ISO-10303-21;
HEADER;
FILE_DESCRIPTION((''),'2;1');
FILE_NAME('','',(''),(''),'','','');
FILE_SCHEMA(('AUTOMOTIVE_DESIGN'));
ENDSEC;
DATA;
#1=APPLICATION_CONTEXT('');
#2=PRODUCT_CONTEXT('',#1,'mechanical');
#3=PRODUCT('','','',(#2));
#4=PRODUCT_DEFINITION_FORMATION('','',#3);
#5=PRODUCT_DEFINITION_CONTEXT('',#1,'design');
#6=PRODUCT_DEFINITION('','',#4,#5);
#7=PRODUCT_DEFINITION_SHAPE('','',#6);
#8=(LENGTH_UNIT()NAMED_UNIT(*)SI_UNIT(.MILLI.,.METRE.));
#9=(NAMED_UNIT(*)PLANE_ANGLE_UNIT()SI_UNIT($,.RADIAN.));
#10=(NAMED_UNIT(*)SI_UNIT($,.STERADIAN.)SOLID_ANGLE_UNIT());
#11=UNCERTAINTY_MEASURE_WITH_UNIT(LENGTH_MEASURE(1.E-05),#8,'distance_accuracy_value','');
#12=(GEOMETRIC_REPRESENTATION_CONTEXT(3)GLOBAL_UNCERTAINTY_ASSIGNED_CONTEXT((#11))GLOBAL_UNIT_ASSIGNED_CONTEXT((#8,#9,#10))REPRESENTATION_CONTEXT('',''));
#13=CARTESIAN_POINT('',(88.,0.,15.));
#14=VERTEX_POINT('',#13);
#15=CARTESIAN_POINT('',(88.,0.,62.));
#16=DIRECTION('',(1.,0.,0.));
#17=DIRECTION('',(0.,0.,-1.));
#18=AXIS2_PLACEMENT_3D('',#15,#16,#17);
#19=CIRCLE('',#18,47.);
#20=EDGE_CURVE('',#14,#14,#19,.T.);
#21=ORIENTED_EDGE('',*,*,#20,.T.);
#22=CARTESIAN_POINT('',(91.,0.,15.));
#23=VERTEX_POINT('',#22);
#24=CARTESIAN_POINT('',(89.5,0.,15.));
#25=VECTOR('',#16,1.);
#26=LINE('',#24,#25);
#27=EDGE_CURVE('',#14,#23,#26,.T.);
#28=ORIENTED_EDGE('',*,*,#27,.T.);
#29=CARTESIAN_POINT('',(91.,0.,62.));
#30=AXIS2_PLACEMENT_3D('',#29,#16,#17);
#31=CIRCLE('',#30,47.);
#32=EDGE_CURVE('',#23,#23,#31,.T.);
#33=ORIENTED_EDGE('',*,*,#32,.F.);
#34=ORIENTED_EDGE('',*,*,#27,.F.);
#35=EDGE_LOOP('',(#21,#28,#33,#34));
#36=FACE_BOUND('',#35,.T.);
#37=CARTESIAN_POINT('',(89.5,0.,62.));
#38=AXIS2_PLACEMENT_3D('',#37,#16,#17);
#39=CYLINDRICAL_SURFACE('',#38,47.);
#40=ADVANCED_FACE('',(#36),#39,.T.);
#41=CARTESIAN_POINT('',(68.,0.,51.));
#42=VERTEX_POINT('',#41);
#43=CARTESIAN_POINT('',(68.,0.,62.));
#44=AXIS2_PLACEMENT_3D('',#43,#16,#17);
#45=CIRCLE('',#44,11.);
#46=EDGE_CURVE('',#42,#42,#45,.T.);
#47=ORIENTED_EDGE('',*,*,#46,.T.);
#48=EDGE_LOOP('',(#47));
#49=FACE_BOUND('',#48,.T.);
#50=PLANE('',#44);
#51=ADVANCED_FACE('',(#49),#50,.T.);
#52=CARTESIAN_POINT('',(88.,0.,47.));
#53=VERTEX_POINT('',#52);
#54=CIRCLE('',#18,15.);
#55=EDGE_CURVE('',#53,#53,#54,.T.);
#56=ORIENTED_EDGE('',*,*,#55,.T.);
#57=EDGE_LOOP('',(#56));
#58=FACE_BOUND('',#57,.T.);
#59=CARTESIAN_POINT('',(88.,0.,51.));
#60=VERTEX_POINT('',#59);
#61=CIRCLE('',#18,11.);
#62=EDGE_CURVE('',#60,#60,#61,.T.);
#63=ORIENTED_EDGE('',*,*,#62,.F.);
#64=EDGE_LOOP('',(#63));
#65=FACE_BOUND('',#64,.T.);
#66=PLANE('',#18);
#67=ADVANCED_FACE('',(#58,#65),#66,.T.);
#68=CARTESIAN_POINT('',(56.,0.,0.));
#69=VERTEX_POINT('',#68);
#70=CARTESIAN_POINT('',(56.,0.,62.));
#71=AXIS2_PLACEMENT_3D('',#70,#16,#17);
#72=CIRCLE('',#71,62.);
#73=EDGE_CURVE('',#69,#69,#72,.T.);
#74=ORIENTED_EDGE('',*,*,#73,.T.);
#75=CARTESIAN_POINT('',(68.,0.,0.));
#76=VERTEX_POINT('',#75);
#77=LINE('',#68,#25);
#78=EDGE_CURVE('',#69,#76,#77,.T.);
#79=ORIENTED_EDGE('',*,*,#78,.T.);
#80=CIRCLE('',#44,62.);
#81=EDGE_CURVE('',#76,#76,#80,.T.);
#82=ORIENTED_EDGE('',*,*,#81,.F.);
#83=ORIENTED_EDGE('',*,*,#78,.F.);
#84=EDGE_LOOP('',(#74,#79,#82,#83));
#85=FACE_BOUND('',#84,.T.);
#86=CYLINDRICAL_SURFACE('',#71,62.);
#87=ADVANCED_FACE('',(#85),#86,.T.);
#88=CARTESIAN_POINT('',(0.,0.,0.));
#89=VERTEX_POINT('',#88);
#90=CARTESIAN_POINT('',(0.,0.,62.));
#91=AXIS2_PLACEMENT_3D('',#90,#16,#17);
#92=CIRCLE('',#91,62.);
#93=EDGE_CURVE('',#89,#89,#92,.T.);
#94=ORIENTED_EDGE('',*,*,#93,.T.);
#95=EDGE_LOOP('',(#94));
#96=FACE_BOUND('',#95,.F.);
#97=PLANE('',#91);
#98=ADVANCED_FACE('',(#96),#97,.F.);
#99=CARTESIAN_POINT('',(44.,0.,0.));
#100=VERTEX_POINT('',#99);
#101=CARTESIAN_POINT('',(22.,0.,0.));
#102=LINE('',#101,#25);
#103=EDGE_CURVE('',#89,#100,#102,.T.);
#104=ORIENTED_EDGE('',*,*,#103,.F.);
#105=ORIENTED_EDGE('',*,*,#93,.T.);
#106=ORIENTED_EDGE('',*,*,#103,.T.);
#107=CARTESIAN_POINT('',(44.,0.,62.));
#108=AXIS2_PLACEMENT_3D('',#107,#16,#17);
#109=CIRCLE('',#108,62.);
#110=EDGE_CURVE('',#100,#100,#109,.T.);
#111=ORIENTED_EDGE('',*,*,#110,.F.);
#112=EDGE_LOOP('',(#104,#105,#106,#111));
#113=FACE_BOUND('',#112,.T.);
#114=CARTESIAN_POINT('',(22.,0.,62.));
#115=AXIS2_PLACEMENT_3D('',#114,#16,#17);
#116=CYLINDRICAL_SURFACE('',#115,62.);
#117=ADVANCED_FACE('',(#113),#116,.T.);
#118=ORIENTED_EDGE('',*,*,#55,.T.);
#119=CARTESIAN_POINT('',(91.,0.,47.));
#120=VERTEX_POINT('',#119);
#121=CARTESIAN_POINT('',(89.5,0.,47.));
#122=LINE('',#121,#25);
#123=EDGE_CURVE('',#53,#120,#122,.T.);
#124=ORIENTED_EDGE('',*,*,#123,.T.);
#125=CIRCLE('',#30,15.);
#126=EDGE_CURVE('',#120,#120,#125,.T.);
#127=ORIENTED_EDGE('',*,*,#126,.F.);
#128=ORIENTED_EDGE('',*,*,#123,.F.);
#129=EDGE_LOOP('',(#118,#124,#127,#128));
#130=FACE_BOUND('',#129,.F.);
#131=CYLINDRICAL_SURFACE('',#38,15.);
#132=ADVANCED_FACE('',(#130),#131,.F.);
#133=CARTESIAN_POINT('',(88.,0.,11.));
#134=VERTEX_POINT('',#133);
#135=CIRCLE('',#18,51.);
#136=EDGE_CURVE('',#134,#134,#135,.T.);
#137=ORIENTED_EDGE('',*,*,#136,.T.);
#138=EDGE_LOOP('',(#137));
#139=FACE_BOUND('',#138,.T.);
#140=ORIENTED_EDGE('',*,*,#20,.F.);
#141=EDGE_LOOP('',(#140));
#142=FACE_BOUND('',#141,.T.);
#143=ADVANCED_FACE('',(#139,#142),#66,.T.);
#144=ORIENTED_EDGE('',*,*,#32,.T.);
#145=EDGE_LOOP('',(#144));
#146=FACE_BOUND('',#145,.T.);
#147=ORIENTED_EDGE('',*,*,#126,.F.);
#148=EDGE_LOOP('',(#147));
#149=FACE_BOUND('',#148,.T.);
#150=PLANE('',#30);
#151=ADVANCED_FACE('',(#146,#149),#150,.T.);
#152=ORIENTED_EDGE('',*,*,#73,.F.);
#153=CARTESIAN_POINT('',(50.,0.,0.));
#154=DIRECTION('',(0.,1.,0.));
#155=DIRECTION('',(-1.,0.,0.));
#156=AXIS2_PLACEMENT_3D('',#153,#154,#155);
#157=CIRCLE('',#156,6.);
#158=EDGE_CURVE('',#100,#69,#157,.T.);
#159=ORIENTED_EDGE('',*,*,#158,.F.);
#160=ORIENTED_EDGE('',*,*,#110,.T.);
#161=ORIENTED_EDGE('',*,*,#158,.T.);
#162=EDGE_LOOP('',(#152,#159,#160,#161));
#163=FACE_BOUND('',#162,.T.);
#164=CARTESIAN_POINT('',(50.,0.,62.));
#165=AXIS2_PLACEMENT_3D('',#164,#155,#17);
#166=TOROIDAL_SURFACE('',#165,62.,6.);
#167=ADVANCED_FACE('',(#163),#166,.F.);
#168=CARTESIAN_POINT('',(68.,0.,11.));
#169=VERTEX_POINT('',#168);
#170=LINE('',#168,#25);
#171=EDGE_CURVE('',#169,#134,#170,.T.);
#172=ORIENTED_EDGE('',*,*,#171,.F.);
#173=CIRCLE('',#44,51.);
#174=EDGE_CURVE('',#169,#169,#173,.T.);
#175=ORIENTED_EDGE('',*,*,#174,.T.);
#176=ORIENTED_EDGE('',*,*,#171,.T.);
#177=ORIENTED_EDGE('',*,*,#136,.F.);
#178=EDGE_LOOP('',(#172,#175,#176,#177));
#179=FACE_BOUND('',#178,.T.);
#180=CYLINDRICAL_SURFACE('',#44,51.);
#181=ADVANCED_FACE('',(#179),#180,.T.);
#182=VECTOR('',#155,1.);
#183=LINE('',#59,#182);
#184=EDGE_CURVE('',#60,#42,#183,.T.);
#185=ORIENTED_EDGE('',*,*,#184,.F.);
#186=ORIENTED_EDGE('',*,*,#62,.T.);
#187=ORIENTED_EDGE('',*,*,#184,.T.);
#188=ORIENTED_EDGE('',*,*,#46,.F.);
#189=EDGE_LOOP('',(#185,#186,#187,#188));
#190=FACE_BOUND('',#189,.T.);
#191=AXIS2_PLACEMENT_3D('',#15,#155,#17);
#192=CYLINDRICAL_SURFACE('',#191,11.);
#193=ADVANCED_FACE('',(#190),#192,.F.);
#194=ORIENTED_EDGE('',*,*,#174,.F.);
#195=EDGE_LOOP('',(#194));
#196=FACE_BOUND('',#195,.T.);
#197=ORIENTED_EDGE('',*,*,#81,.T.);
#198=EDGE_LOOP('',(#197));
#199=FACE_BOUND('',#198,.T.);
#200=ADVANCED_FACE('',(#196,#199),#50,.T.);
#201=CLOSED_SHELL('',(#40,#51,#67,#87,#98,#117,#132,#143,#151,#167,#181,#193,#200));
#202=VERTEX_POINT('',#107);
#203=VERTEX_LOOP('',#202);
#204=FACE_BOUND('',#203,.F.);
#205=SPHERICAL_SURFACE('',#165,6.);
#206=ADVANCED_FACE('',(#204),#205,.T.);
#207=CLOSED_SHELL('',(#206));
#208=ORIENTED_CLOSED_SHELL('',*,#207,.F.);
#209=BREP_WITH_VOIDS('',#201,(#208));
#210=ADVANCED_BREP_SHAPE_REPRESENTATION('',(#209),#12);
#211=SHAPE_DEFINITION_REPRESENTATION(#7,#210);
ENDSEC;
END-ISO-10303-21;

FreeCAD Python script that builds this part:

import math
import FreeCAD as App
import Part
import Sketcher
from FreeCAD import Vector
Q = App.Units.Quantity

doc = App.newDocument("Part")
body = doc.addObject("PartDesign::Body", "Body")

sketch1 = body.newObject("Sketcher::SketchObject", "Sketch")
sketch1.AttachmentSupport = (doc.getObject("XZ_Plane"), [""])
sketch1.MapMode = "FlatFace"
sketch1.addGeometry([
    Part.LineSegment(Vector(0, 62, 0), Vector(0, 0, 0)),
    Part.LineSegment(Vector(0, 0, 0), Vector(44, 0, 0)),
    Part.ArcOfCircle(Part.Circle(Vector(50, 0, 0), Vector(0, 0, 1), 6), math.radians(0), math.radians(180)),
    Part.LineSegment(Vector(56, 0, 0), Vector(68, 0, 0)),
    Part.LineSegment(Vector(68, 0, 0), Vector(68, 11, 0)),
    Part.LineSegment(Vector(68, 11, 0), Vector(88, 11, 0)),
    Part.LineSegment(Vector(88, 11, 0), Vector(88, 15, 0)),
    Part.LineSegment(Vector(88, 15, 0), Vector(91, 15, 0)),
    Part.LineSegment(Vector(91, 15, 0), Vector(91, 47, 0)),
    Part.LineSegment(Vector(91, 47, 0), Vector(88, 47, 0)),
    Part.LineSegment(Vector(88, 47, 0), Vector(88, 51, 0)),
    Part.LineSegment(Vector(88, 51, 0), Vector(68, 51, 0)),
    Part.LineSegment(Vector(68, 51, 0), Vector(68, 62, 0)),
    Part.LineSegment(Vector(68, 62, 0), Vector(56, 62, 0)),
    Part.ArcOfCircle(Part.Circle(Vector(50, 62, 0), Vector(0, 0, 1), 6), math.radians(180), math.radians(360)),
    Part.LineSegment(Vector(44, 62, 0), Vector(0, 62, 0)),
], False)
sketch1.addGeometry(Part.LineSegment(Vector(0, 62, 0), Vector(91, 62, 0)), True)
sketch1.addConstraint([
    Sketcher.Constraint("Coincident", 0, 2, 1, 1),
    Sketcher.Constraint("Coincident", 1, 2, 2, 2),
    Sketcher.Constraint("Coincident", 2, 1, 3, 1),
    Sketcher.Constraint("Coincident", 3, 2, 4, 1),
    Sketcher.Constraint("Coincident", 4, 2, 5, 1),
    Sketcher.Constraint("Coincident", 5, 2, 6, 1),
    Sketcher.Constraint("Coincident", 6, 2, 7, 1),
    Sketcher.Constraint("Coincident", 7, 2, 8, 1),
    Sketcher.Constraint("Coincident", 8, 2, 9, 1),
    Sketcher.Constraint("Coincident", 9, 2, 10, 1),
    Sketcher.Constraint("Coincident", 10, 2, 11, 1),
    Sketcher.Constraint("Coincident", 11, 2, 12, 1),
    Sketcher.Constraint("Coincident", 12, 2, 13, 1),
    Sketcher.Constraint("Coincident", 13, 2, 14, 2),
    Sketcher.Constraint("Coincident", 14, 1, 15, 1),
    Sketcher.Constraint("Coincident", 15, 2, 0, 1),
    Sketcher.Constraint("Vertical", 0),
    Sketcher.Constraint("Horizontal", 1),
    Sketcher.Constraint("Horizontal", 3),
    Sketcher.Constraint("Vertical", 4),
    Sketcher.Constraint("Horizontal", 5),
    Sketcher.Constraint("Vertical", 6),
    Sketcher.Constraint("Horizontal", 7),
    Sketcher.Constraint("Vertical", 8),
    Sketcher.Constraint("Horizontal", 9),
    Sketcher.Constraint("Vertical", 10),
    Sketcher.Constraint("Horizontal", 11),
    Sketcher.Constraint("Vertical", 12),
    Sketcher.Constraint("Horizontal", 13),
    Sketcher.Constraint("Horizontal", 15),
    Sketcher.Constraint("Horizontal", 16),
    Sketcher.Constraint("Coincident", 0, 2, -1, 1),
    Sketcher.Constraint("Coincident", 16, 1, 15, 2),
    Sketcher.Constraint("Equal", 2, 14),
    Sketcher.Constraint("PointOnObject", 2, 3, -1),
    Sketcher.Constraint("PointOnObject", 2, 1, -1),
    Sketcher.Constraint("Horizontal", 14, 3, 12, 2),
    Sketcher.Constraint("Horizontal", 13, 2, 14, 1),
    Sketcher.Constraint("Vertical", 2, 3, 14, 3),
    Sketcher.Constraint("Vertical", 6, 2, 9, 2),
    Sketcher.Constraint("Vertical", 4, 2, 11, 2),
    Sketcher.Constraint("Vertical", 8, 2, 16, 2),
    Sketcher.Constraint("Equal", 6, 10),
    Sketcher.Constraint("Equal", 4, 12),
    Sketcher.Constraint("Radius", 2, Q("6 mm")),
    Sketcher.Constraint("DistanceX", 1, 1, 1, 2, Q("44 mm")),
    Sketcher.Constraint("DistanceX", 3, 1, 3, 2, Q("12 mm")),
    Sketcher.Constraint("DistanceX", 5, 1, 5, 2, Q("20 mm")),
    Sketcher.Constraint("DistanceX", 7, 1, 7, 2, Q("3 mm")),
    Sketcher.Constraint("DistanceY", 0, 2, 0, 1, Q("62 mm")),
    Sketcher.Constraint("DistanceY", 4, 1, 4, 2, Q("11 mm")),
    Sketcher.Constraint("DistanceY", 6, 1, 6, 2, Q("4 mm")),
])
revolution = body.newObject("PartDesign::Revolution", "Revolution")
revolution.Profile = sketch1
revolution.ReferenceAxis = (sketch1, ["Axis0"])
revolution.Angle = 360

doc.recompute()
